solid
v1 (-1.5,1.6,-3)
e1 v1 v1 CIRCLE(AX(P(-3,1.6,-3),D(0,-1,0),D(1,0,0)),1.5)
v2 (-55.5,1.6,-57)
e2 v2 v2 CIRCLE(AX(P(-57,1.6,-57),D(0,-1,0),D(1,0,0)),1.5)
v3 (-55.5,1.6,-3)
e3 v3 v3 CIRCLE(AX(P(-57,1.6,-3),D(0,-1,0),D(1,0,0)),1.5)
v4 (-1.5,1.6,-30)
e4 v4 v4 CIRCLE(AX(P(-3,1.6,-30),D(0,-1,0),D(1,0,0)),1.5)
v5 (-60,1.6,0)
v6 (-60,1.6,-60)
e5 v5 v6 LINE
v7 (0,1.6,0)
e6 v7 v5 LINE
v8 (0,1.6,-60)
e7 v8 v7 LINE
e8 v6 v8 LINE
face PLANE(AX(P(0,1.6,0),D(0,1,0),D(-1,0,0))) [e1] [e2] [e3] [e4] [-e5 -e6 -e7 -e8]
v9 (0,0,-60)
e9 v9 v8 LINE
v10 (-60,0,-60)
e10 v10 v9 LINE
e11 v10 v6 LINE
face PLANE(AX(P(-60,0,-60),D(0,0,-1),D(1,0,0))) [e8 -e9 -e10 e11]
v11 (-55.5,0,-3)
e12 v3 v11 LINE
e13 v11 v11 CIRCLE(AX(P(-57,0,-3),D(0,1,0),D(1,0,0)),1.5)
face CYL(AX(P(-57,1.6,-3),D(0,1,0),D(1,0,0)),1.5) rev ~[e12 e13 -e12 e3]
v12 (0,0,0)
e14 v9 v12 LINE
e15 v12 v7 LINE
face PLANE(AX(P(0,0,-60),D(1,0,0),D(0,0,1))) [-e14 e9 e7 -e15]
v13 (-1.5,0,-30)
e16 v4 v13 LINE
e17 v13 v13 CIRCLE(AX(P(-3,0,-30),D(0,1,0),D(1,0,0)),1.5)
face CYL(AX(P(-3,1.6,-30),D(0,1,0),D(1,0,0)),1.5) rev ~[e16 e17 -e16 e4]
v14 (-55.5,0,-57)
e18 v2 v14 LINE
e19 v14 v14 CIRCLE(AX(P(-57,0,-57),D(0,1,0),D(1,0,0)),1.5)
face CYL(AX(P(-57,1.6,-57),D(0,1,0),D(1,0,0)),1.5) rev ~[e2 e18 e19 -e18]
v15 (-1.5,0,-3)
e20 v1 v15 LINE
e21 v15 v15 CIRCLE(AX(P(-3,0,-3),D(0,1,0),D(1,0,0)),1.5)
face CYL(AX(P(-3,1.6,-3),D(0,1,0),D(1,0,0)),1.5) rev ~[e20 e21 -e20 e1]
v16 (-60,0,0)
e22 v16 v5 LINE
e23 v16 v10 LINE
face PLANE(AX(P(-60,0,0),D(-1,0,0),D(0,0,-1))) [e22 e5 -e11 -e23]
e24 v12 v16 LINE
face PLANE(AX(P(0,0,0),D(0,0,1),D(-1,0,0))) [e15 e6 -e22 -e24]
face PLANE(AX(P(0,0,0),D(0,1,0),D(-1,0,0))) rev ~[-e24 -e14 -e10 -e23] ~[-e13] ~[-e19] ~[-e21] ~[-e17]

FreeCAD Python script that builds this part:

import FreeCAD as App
import Part
import Sketcher
from FreeCAD import Vector
Q = App.Units.Quantity


def add_polygon(sketch, points):
    """Adds a closed chain of lines whose ends are joined by coincident constraints."""
    first, n = sketch.GeometryCount, len(points)
    for a, b in zip(points, points[1:] + points[:1]):
        sketch.addGeometry(Part.LineSegment(App.Vector(*a, 0), App.Vector(*b, 0)), False)
    for i in range(n):
        sketch.addConstraint(Sketcher.Constraint("Coincident", first + i, 2, first + (i + 1) % n, 1))

doc = App.newDocument("Part")
body = doc.addObject("PartDesign::Body", "Body")

sketch1 = body.newObject("Sketcher::SketchObject", "Sketch")
sketch1.AttachmentSupport = (doc.getObject("XZ_Plane"), [""])
sketch1.MapMode = "FlatFace"
add_polygon(sketch1, [(-60, 0), (0, 0), (0, -60), (-60, -60)])
sketch1.addConstraint(Sketcher.Constraint("Horizontal", 0))
sketch1.addConstraint(Sketcher.Constraint("Vertical", 1))
sketch1.addConstraint(Sketcher.Constraint("Horizontal", 2))
sketch1.addConstraint(Sketcher.Constraint("Vertical", 3))
sketch1.addConstraint(Sketcher.Constraint("Coincident", 0, 2, -1, 1))
sketch1.addConstraint(Sketcher.Constraint("Equal", 2, 1))
sketch1.addConstraint(Sketcher.Constraint("DistanceX", 0, 1, 0, 2, Q("2.3622 in")))
pad1 = body.newObject("PartDesign::Pad", "Pad")
pad1.Profile = sketch1
pad1.Length = Q("0.0629921 in")
pad1.Reversed = True

sketch2 = body.newObject("Sketcher::SketchObject", "Sketch001")
sketch2.AttachmentSupport = (doc.getObject("XZ_Plane"), [""])
sketch2.MapMode = "FlatFace"
sketch2.AttachmentOffset = App.Placement(Vector(0, 0, -0.0629921 * 25.4), App.Rotation())
sketch2.addGeometry(Part.Circle(Vector(-3, -3, 0), Vector(0, 0, 1), 1.5), False)
sketch2.addGeometry(Part.Circle(Vector(-57, -57, 0), Vector(0, 0, 1), 1.5), False)
sketch2.addGeometry(Part.Circle(Vector(-57, -3, 0), Vector(0, 0, 1), 1.5), False)
sketch2.addGeometry(Part.Circle(Vector(-3, -30, 0), Vector(0, 0, 1), 1.5), False)
sketch2.addConstraint(Sketcher.Constraint("Equal", 0, 1))
sketch2.addConstraint(Sketcher.Constraint("Equal", 1, 2))
sketch2.addConstraint(Sketcher.Constraint("Equal", 2, 3))
sketch2.addConstraint(Sketcher.Constraint("Horizontal", 0, 3, 2, 3))
sketch2.addConstraint(Sketcher.Constraint("Vertical", 1, 3, 2, 3))
sketch2.addConstraint(Sketcher.Constraint("Vertical", 0, 3, 3, 3))
sketch2.addConstraint(Sketcher.Constraint("Diameter", 0, Q("0.1181 in")))
sketch2.addConstraint(Sketcher.Constraint("DistanceY", 3, 3, 0, 3, Q("1.063 in")))
sketch2.addConstraint(Sketcher.Constraint("DistanceY", 1, 3, 3, 3, Q("1.063 in")))
sketch2.addConstraint(Sketcher.Constraint("DistanceX", 0, 3, -1, 1, Q("0.1181 in")))
sketch2.addConstraint(Sketcher.Constraint("DistanceY", 0, 3, -1, 1, Q("0.1181 in")))
sketch2.addConstraint(Sketcher.Constraint("DistanceX", 1, 3, 0, 3, 54.0))
pocket1 = body.newObject("PartDesign::Pocket", "Pocket")
pocket1.Profile = sketch2
pocket1.Length = Q("0.0629921 in")
pocket1.Reversed = True

doc.recompute()
